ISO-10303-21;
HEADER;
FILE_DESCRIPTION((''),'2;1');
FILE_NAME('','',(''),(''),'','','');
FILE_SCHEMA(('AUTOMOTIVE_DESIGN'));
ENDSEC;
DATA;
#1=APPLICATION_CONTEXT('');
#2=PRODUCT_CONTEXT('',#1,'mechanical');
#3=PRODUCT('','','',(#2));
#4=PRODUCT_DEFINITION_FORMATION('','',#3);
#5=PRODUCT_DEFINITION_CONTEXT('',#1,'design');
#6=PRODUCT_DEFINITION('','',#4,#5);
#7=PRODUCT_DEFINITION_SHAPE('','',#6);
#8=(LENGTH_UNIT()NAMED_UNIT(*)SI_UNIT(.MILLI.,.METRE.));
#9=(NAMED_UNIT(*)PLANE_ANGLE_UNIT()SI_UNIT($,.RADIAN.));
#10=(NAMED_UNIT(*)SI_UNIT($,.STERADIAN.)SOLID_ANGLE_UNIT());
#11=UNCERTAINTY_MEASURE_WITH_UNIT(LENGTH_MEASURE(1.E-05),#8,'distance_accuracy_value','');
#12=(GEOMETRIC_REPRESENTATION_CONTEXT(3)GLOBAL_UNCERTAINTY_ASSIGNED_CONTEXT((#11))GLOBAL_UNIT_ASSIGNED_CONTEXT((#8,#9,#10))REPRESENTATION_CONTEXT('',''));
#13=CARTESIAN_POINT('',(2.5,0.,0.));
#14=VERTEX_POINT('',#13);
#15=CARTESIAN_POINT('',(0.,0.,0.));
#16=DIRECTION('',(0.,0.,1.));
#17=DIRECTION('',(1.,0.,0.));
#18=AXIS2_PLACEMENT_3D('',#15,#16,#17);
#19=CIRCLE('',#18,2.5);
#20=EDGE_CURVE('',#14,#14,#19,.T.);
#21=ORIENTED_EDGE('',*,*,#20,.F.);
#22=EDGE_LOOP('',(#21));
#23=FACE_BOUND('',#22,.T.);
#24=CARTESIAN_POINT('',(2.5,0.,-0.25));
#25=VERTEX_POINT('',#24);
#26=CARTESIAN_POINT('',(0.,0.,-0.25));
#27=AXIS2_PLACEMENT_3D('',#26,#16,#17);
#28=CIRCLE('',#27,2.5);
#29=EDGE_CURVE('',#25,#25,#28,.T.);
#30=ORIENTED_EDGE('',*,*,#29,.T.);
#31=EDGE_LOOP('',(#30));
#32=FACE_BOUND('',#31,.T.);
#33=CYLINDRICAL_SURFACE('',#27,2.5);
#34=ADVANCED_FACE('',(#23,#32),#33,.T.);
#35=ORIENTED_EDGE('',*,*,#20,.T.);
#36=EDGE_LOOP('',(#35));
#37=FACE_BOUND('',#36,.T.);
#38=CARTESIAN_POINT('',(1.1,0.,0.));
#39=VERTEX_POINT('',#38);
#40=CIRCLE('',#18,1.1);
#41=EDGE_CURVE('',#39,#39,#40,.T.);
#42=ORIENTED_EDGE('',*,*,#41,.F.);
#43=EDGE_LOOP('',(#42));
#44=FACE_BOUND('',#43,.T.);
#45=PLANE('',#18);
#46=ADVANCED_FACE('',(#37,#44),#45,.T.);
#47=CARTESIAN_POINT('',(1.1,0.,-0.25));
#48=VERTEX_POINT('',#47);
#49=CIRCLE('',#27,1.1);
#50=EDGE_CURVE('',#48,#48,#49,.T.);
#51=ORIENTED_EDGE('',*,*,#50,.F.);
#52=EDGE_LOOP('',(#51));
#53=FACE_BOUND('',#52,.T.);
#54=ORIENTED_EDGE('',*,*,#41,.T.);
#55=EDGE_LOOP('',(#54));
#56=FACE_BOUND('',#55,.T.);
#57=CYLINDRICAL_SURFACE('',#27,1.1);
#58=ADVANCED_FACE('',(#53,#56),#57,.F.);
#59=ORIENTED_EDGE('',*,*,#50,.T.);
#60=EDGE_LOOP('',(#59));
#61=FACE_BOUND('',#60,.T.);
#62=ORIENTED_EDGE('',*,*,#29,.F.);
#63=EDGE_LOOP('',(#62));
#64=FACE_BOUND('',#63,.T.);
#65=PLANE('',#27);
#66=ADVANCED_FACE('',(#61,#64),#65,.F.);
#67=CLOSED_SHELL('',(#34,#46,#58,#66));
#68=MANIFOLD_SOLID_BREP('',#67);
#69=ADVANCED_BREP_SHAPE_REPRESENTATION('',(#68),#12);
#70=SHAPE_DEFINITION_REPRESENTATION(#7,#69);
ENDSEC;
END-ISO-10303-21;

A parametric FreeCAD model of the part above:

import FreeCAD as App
import Part
import Sketcher
Q = App.Units.Quantity

doc = App.newDocument("Part")
body = doc.addObject("PartDesign::Body", "Body")

sketch1 = doc.addObject("Sketcher::SketchObject", "Sketch")
body.addObject(sketch1)
sketch1.AttachmentSupport = (doc.XY_Plane, [""])
sketch1.MapMode = "FlatFace"
sketch1.addGeometry([
    Part.Circle(App.Vector(0, 0, 0), App.Vector(0, 0, 1), 2.5),
    Part.Circle(App.Vector(0, 0, 0), App.Vector(0, 0, 1), 1.1),
], False)
sketch1.addConstraint([
    Sketcher.Constraint("Coincident", 0, 3, -1, 1),
    Sketcher.Constraint("Coincident", 1, 3, -1, 1),
    Sketcher.Constraint("Diameter", 0, Q("5 mm")),
    Sketcher.Constraint("Diameter", 1, Q("2.2 mm")),
])
pad1 = doc.addObject("PartDesign::Pad", "Pad")
body.addObject(pad1)
pad1.Profile = sketch1
pad1.Length = 0.25
pad1.Reversed = True

doc.recompute()
